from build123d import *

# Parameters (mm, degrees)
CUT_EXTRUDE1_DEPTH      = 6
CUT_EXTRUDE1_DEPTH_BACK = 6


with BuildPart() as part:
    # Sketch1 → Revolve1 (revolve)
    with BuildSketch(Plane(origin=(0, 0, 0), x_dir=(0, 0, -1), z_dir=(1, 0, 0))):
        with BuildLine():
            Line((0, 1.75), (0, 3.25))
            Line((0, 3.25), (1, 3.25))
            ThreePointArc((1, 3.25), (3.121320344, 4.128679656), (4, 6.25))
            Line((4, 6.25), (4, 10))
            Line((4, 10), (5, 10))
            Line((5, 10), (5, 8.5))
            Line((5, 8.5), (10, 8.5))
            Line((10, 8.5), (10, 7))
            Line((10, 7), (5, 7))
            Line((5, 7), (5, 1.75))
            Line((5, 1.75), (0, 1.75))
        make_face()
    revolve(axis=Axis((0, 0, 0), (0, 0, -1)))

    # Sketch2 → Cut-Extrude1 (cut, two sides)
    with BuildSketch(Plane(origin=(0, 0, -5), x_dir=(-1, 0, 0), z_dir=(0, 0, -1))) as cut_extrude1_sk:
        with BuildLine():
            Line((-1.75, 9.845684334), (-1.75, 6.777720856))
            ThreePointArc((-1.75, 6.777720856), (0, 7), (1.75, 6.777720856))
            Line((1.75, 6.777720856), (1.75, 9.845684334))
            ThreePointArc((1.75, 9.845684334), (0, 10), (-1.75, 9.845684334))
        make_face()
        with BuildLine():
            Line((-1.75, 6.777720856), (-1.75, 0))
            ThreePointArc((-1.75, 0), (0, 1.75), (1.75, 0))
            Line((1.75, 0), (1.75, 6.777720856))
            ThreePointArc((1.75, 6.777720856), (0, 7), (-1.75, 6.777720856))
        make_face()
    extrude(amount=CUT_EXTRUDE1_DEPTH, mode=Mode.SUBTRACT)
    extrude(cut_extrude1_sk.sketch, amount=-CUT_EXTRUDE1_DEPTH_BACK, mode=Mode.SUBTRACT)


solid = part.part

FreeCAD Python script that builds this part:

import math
import FreeCAD as App
import Part
import Sketcher

V = App.Vector
Q = App.Units.Quantity

doc = App.newDocument("Part")
body = doc.addObject("PartDesign::Body", "Body")

# Sketch on YZ plane
sketch1 = body.newObject("Sketcher::SketchObject", "Sketch")
sketch1.AttachmentSupport = (doc.getObject("YZ_Plane"), [""])
sketch1.MapMode = "FlatFace"
sketch1.addGeometry(Part.LineSegment(V(3.25, 0, 0), V(1.75, 0, 0)), False)
sketch1.addGeometry(Part.LineSegment(V(1.75, 0, 0), V(1.75, -5, 0)), False)
sketch1.addGeometry(Part.LineSegment(V(1.75, -5, 0), V(7, -5, 0)), False)
sketch1.addGeometry(Part.LineSegment(V(7, -5, 0), V(7, -10, 0)), False)
sketch1.addGeometry(Part.LineSegment(V(7, -10, 0), V(8.5, -10, 0)), False)
sketch1.addGeometry(Part.LineSegment(V(8.5, -10, 0), V(8.5, -5, 0)), False)
sketch1.addGeometry(Part.LineSegment(V(8.5, -5, 0), V(10, -5, 0)), False)
sketch1.addGeometry(Part.LineSegment(V(10, -5, 0), V(10, -4, 0)), False)
sketch1.addGeometry(Part.LineSegment(V(10, -4, 0), V(6.25, -4, 0)), False)
sketch1.addGeometry(Part.ArcOfCircle(Part.Circle(V(6.25, -1, 0), V(0, 0, 1), 3), math.radians(180), math.radians(270)), False)
sketch1.addGeometry(Part.LineSegment(V(3.25, -1, 0), V(3.25, 0, 0)), False)
sketch1.addConstraint(Sketcher.Constraint("Coincident", 0, 2, 1, 1))
sketch1.addConstraint(Sketcher.Constraint("Coincident", 1, 2, 2, 1))
sketch1.addConstraint(Sketcher.Constraint("Coincident", 2, 2, 3, 1))
sketch1.addConstraint(Sketcher.Constraint("Coincident", 3, 2, 4, 1))
sketch1.addConstraint(Sketcher.Constraint("Coincident", 4, 2, 5, 1))
sketch1.addConstraint(Sketcher.Constraint("Coincident", 5, 2, 6, 1))
sketch1.addConstraint(Sketcher.Constraint("Coincident", 6, 2, 7, 1))
sketch1.addConstraint(Sketcher.Constraint("Coincident", 7, 2, 8, 1))
sketch1.addConstraint(Sketcher.Constraint("Tangent", 8, 2, 9, 2))
sketch1.addConstraint(Sketcher.Constraint("Tangent", 9, 1, 10, 1))
sketch1.addConstraint(Sketcher.Constraint("Coincident", 10, 2, 0, 1))
sketch1.addConstraint(Sketcher.Constraint("Horizontal", 0))
sketch1.addConstraint(Sketcher.Constraint("Vertical", 1))
sketch1.addConstraint(Sketcher.Constraint("Horizontal", 2))
sketch1.addConstraint(Sketcher.Constraint("Vertical", 3))
sketch1.addConstraint(Sketcher.Constraint("Horizontal", 4))
sketch1.addConstraint(Sketcher.Constraint("Vertical", 5))
sketch1.addConstraint(Sketcher.Constraint("Horizontal", 6))
sketch1.addConstraint(Sketcher.Constraint("Vertical", 7))
sketch1.addConstraint(Sketcher.Constraint("Horizontal", 8))
sketch1.addConstraint(Sketcher.Constraint("Vertical", 10))
sketch1.addConstraint(Sketcher.Constraint("PointOnObject", 0, 2, -1))
sketch1.addConstraint(Sketcher.Constraint("Horizontal", 2, 2, 5, 2))
sketch1.addConstraint(Sketcher.Constraint("Equal", 0, 4))
sketch1.addConstraint(Sketcher.Constraint("Equal", 4, 6))
sketch1.addConstraint(Sketcher.Constraint("Equal", 1, 3))
sketch1.addConstraint(Sketcher.Constraint("Equal", 7, 10))
sketch1.addConstraint(Sketcher.Constraint("Radius", 9, Q("3 mm")))
sketch1.addConstraint(Sketcher.Constraint("DistanceY", 1, 2, 1, 1, Q("5 mm")))
sketch1.addConstraint(Sketcher.Constraint("DistanceX", 0, 2, 0, 1, Q("1.5 mm")))
sketch1.addConstraint(Sketcher.Constraint("DistanceX", -1, 1, 2, 2, Q("7 mm")))
sketch1.addConstraint(Sketcher.Constraint("DistanceX", 2, 1, 2, 2, Q("5.25 mm")))
revolution = body.newObject("PartDesign::Revolution", "Revolution")
revolution.Profile = sketch1
revolution.ReferenceAxis = (sketch1, ["V_Axis"])
revolution.Angle = 360

# Sketch on XY plane
sketch2 = body.newObject("Sketcher::SketchObject", "Sketch001")
sketch2.AttachmentSupport = (doc.getObject("XY_Plane"), [""])
sketch2.MapMode = "FlatFace"
sketch2.AttachmentOffset = App.Placement(V(0, 0, -5), App.Rotation())
sketch2.addGeometry(Part.LineSegment(V(1.75, 9.845684, 0), V(1.75, 0, 0)), False)
sketch2.addGeometry(Part.ArcOfCircle(Part.Circle(V(0, 0, 0), V(0, 0, 1), 1.75), math.radians(0), math.radians(180)), False)
sketch2.addGeometry(Part.LineSegment(V(-1.75, 0, 0), V(-1.75, 9.845684, 0)), False)
sketch2.addGeometry(Part.ArcOfCircle(Part.Circle(V(0, 0, 0), V(0, 0, 1), 10), math.radians(79.921342), math.radians(100.078658)), False)
sketch2.addConstraint(Sketcher.Constraint("Tangent", 0, 2, 1, 1))
sketch2.addConstraint(Sketcher.Constraint("Tangent", 1, 2, 2, 1))
sketch2.addConstraint(Sketcher.Constraint("Coincident", 2, 2, 3, 2))
sketch2.addConstraint(Sketcher.Constraint("Coincident", 3, 1, 0, 1))
sketch2.addConstraint(Sketcher.Constraint("Vertical", 0))
sketch2.addConstraint(Sketcher.Constraint("Vertical", 2))
sketch2.addConstraint(Sketcher.Constraint("Coincident", 1, 3, -1, 1))
sketch2.addConstraint(Sketcher.Constraint("Coincident", 3, 3, -1, 1))
sketch2.addConstraint(Sketcher.Constraint("Radius", 3, Q("10 mm")))
sketch2.addConstraint(Sketcher.Constraint("Radius", 1, Q("1.75 mm")))
pocket1 = body.newObject("PartDesign::Pocket", "Pocket")
pocket1.Profile = sketch2
pocket1.Type = "ThroughAll"
pocket1.Midplane = True

doc.recompute()
